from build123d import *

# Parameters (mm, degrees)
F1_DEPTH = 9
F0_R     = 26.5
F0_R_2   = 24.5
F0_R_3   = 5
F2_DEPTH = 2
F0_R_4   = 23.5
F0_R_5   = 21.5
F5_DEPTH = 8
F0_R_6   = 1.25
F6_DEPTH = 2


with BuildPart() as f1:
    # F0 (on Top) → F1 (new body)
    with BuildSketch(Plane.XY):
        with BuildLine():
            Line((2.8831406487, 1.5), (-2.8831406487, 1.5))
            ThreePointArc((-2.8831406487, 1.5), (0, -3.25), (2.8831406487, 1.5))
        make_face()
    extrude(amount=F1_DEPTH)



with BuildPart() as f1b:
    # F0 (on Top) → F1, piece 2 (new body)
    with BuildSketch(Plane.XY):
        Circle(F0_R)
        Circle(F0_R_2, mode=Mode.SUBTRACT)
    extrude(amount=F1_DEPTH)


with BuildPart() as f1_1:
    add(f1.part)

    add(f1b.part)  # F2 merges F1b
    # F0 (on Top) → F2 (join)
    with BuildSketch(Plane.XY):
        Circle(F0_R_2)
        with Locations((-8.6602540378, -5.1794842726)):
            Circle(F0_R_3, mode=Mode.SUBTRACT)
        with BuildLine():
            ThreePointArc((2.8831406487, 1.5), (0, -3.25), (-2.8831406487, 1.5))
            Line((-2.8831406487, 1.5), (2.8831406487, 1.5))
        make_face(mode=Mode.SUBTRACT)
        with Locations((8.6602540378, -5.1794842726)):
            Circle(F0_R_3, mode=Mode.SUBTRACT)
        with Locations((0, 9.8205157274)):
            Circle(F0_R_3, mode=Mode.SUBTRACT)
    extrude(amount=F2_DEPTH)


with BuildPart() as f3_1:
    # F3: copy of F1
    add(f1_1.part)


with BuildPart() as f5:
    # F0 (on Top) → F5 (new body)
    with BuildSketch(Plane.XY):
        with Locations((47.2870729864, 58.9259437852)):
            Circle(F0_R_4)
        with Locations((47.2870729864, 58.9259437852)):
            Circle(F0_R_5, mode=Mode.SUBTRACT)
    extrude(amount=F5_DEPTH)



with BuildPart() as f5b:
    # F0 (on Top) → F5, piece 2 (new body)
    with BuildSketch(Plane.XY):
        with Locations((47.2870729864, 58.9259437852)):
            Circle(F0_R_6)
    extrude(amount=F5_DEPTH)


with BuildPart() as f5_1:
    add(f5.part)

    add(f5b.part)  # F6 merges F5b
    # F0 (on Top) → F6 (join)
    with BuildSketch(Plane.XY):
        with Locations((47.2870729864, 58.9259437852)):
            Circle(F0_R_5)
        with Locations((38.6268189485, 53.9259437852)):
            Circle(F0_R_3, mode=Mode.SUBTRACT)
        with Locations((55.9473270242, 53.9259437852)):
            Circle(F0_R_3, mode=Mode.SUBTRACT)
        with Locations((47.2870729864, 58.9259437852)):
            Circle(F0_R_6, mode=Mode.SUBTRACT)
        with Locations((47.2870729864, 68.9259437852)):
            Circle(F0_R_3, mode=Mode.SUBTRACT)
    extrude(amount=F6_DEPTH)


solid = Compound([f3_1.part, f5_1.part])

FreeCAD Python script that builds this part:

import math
import FreeCAD as App
import Part
import Sketcher

V = App.Vector
Q = App.Units.Quantity

doc = App.newDocument("Part")
body = doc.addObject("PartDesign::Body", "Body")

# Sketch on XY plane
sketch1 = body.newObject("Sketcher::SketchObject", "Sketch")
sketch1.AttachmentSupport = (doc.getObject("XY_Plane"), [""])
sketch1.MapMode = "FlatFace"
sketch1.addGeometry([
    Part.LineSegment(V(2.9, 1.5, 0), V(-2.9, 1.5, 0)),
    Part.ArcOfCircle(Part.Circle(V(0, 0, 0), V(0, 0, 1), 3.2), math.radians(153), math.radians(387)),
], False)
sketch1.addConstraint([
    Sketcher.Constraint("Coincident", 0, 1, 1, 2),
    Sketcher.Constraint("Coincident", 1, 1, 0, 2),
    Sketcher.Constraint("Horizontal", 0),
    Sketcher.Constraint("Coincident", 1, 3, -1, 1),
    Sketcher.Constraint("Radius", 1, Q("3.25 mm")),
    Sketcher.Constraint("DistanceY", -1, 1, 0, 1, Q("1.5 mm")),
])
pad1 = body.newObject("PartDesign::Pad", "Pad")
pad1.Profile = sketch1
pad1.Length = 9
body2 = doc.addObject("PartDesign::Body", "Body001")

# Sketch on XY plane
sketch2 = body2.newObject("Sketcher::SketchObject", "Sketch001")
sketch2.AttachmentSupport = (doc.getObject("XY_Plane001"), [""])
sketch2.MapMode = "FlatFace"
sketch2.addGeometry([
    Part.Circle(V(0, 0, 0), V(0, 0, 1), 26),
    Part.Circle(V(0, 0, 0), V(0, 0, 1), 24),
], False)
sketch2.addConstraint([
    Sketcher.Constraint("Coincident", 0, 3, -1, 1),
    Sketcher.Constraint("Coincident", 1, 3, -1, 1),
    Sketcher.Constraint("Diameter", 0, Q("53 mm")),
    Sketcher.Constraint("Diameter", 1, Q("49 mm")),
])
pad2 = body2.newObject("PartDesign::Pad", "Pad001")
pad2.Profile = sketch2
pad2.Length = 9
body.AllowCompound = True
doc.recompute()

boolean = body.newObject("PartDesign::Boolean", "Boolean")
boolean.Type = "Fuse"
boolean.addObjects([body2])

# Sketch on XY plane
sketch3 = body.newObject("Sketcher::SketchObject", "Sketch002")
sketch3.AttachmentSupport = (doc.getObject("XY_Plane"), [""])
sketch3.MapMode = "FlatFace"
sketch3.addGeometry([
    Part.Circle(V(0, 0, 0), V(0, 0, 1), 24.5),  # 0
    Part.Circle(V(-8.7, -5.2, 0), V(0, 0, 1), 5),  # 1
    Part.Circle(V(8.7, -5.2, 0), V(0, 0, 1), 5),  # 2
    Part.LineSegment(V(-2.9, 1.5, 0), V(2.9, 1.5, 0)),  # 3
    Part.ArcOfCircle(Part.Circle(V(0, 0, 0), V(0, 0, 1), 3.2), math.radians(153), math.radians(387)),  # 4
    Part.Circle(V(0, 9.8, 0), V(0, 0, 1), 5),  # 5
], False)
sketch3.addConstraint([
    Sketcher.Constraint("Coincident", 3, 1, 4, 1),
    Sketcher.Constraint("Coincident", 4, 2, 3, 2),
    Sketcher.Constraint("Horizontal", 3),
    Sketcher.Constraint("Coincident", 0, 3, -1, 1),
    Sketcher.Constraint("Coincident", 4, 3, -1, 1),
    Sketcher.Constraint("Equal", 1, 2),
    Sketcher.Constraint("Equal", 2, 5),
    Sketcher.Constraint("Symmetric", 1, 3, 2, 3, -2),
    Sketcher.Constraint("PointOnObject", 5, 3, -2),
    Sketcher.Constraint("Diameter", 0, Q("49 mm")),
    Sketcher.Constraint("Diameter", 1, Q("10 mm")),
    Sketcher.Constraint("Radius", 4, Q("3.25 mm")),
    Sketcher.Constraint("DistanceY", 1, 3, 5, 3, Q("15 mm")),
    Sketcher.Constraint("DistanceY", -1, 1, 3, 1, Q("1.5 mm")),
    Sketcher.Constraint("DistanceX", 1, 3, 2, 3, Q("17.320508 mm")),
    Sketcher.Constraint("DistanceY", 1, 3, -1, 1, Q("5.179484 mm")),
])
pad3 = body.newObject("PartDesign::Pad", "Pad002")
pad3.Profile = sketch3
pad3.Length = 2
body3 = doc.addObject("PartDesign::Body", "Body002")

# Sketch on XY plane
sketch4 = body3.newObject("Sketcher::SketchObject", "Sketch003")
sketch4.AttachmentSupport = (doc.getObject("XY_Plane002"), [""])
sketch4.MapMode = "FlatFace"
sketch4.addGeometry([
    Part.Circle(V(47, 59, 0), V(0, 0, 1), 24),
    Part.Circle(V(47, 59, 0), V(0, 0, 1), 22),
], False)
sketch4.addConstraint([
    Sketcher.Constraint("Coincident", 1, 3, 0, 3),
    Sketcher.Constraint("Diameter", 0, Q("47 mm")),
    Sketcher.Constraint("Diameter", 1, Q("43 mm")),
    Sketcher.Constraint("DistanceX", -1, 1, 0, 3, Q("47.287073 mm")),
    Sketcher.Constraint("DistanceY", -1, 1, 0, 3, Q("58.925944 mm")),
])
pad4 = body3.newObject("PartDesign::Pad", "Pad003")
pad4.Profile = sketch4
pad4.Length = 8
body4 = doc.addObject("PartDesign::Body", "Body003")

# Sketch on XY plane
sketch5 = body4.newObject("Sketcher::SketchObject", "Sketch004")
sketch5.AttachmentSupport = (doc.getObject("XY_Plane003"), [""])
sketch5.MapMode = "FlatFace"
sketch5.addGeometry(Part.Circle(V(47.3, 58.9, 0), V(0, 0, 1), 1.2), False)
sketch5.addConstraint([
    Sketcher.Constraint("Diameter", 0, Q("2.5 mm")),
    Sketcher.Constraint("DistanceX", -1, 1, 0, 3, Q("47.287073 mm")),
    Sketcher.Constraint("DistanceY", -1, 1, 0, 3, Q("58.925944 mm")),
])
pad5 = body4.newObject("PartDesign::Pad", "Pad004")
pad5.Profile = sketch5
pad5.Length = 8
body3.AllowCompound = True
doc.recompute()

boolean2 = body3.newObject("PartDesign::Boolean", "Boolean001")
boolean2.Type = "Fuse"
boolean2.addObjects([body4])

# Sketch on XY plane
sketch6 = body3.newObject("Sketcher::SketchObject", "Sketch005")
sketch6.AttachmentSupport = (doc.getObject("XY_Plane002"), [""])
sketch6.MapMode = "FlatFace"
sketch6.addGeometry([
    Part.Circle(V(47.3, 58.9, 0), V(0, 0, 1), 21.5),  # 0
    Part.Circle(V(38.6, 53.9, 0), V(0, 0, 1), 5),  # 1
    Part.Circle(V(55.9, 53.9, 0), V(0, 0, 1), 5),  # 2
    Part.Circle(V(47.3, 58.9, 0), V(0, 0, 1), 1.2),  # 3
    Part.Circle(V(47.3, 68.9, 0), V(0, 0, 1), 5),  # 4
], False)
sketch6.addConstraint([
    Sketcher.Constraint("Coincident", 3, 3, 0, 3),
    Sketcher.Constraint("Equal", 1, 2),
    Sketcher.Constraint("Equal", 2, 4),
    Sketcher.Constraint("Horizontal", 1, 3, 2, 3),
    Sketcher.Constraint("Vertical", 3, 3, 4, 3),
    Sketcher.Constraint("Diameter", 0, Q("43 mm")),
    Sketcher.Constraint("Diameter", 1, Q("10 mm")),
    Sketcher.Constraint("Diameter", 3, Q("2.5 mm")),
    Sketcher.Constraint("DistanceY", 1, 3, 0, 3, Q("5 mm")),
    Sketcher.Constraint("DistanceY", 0, 3, 4, 3, Q("10 mm")),
    Sketcher.Constraint("DistanceX", -1, 1, 1, 3, Q("38.626819 mm")),
    Sketcher.Constraint("DistanceX", 1, 3, 2, 3, Q("17.320508 mm")),
    Sketcher.Constraint("DistanceX", -1, 1, 0, 3, Q("47.287073 mm")),
    Sketcher.Constraint("DistanceY", -1, 1, 0, 3, Q("58.925944 mm")),
])
pad6 = body3.newObject("PartDesign::Pad", "Pad005")
pad6.Profile = sketch6
pad6.Length = 2

doc.recompute()
